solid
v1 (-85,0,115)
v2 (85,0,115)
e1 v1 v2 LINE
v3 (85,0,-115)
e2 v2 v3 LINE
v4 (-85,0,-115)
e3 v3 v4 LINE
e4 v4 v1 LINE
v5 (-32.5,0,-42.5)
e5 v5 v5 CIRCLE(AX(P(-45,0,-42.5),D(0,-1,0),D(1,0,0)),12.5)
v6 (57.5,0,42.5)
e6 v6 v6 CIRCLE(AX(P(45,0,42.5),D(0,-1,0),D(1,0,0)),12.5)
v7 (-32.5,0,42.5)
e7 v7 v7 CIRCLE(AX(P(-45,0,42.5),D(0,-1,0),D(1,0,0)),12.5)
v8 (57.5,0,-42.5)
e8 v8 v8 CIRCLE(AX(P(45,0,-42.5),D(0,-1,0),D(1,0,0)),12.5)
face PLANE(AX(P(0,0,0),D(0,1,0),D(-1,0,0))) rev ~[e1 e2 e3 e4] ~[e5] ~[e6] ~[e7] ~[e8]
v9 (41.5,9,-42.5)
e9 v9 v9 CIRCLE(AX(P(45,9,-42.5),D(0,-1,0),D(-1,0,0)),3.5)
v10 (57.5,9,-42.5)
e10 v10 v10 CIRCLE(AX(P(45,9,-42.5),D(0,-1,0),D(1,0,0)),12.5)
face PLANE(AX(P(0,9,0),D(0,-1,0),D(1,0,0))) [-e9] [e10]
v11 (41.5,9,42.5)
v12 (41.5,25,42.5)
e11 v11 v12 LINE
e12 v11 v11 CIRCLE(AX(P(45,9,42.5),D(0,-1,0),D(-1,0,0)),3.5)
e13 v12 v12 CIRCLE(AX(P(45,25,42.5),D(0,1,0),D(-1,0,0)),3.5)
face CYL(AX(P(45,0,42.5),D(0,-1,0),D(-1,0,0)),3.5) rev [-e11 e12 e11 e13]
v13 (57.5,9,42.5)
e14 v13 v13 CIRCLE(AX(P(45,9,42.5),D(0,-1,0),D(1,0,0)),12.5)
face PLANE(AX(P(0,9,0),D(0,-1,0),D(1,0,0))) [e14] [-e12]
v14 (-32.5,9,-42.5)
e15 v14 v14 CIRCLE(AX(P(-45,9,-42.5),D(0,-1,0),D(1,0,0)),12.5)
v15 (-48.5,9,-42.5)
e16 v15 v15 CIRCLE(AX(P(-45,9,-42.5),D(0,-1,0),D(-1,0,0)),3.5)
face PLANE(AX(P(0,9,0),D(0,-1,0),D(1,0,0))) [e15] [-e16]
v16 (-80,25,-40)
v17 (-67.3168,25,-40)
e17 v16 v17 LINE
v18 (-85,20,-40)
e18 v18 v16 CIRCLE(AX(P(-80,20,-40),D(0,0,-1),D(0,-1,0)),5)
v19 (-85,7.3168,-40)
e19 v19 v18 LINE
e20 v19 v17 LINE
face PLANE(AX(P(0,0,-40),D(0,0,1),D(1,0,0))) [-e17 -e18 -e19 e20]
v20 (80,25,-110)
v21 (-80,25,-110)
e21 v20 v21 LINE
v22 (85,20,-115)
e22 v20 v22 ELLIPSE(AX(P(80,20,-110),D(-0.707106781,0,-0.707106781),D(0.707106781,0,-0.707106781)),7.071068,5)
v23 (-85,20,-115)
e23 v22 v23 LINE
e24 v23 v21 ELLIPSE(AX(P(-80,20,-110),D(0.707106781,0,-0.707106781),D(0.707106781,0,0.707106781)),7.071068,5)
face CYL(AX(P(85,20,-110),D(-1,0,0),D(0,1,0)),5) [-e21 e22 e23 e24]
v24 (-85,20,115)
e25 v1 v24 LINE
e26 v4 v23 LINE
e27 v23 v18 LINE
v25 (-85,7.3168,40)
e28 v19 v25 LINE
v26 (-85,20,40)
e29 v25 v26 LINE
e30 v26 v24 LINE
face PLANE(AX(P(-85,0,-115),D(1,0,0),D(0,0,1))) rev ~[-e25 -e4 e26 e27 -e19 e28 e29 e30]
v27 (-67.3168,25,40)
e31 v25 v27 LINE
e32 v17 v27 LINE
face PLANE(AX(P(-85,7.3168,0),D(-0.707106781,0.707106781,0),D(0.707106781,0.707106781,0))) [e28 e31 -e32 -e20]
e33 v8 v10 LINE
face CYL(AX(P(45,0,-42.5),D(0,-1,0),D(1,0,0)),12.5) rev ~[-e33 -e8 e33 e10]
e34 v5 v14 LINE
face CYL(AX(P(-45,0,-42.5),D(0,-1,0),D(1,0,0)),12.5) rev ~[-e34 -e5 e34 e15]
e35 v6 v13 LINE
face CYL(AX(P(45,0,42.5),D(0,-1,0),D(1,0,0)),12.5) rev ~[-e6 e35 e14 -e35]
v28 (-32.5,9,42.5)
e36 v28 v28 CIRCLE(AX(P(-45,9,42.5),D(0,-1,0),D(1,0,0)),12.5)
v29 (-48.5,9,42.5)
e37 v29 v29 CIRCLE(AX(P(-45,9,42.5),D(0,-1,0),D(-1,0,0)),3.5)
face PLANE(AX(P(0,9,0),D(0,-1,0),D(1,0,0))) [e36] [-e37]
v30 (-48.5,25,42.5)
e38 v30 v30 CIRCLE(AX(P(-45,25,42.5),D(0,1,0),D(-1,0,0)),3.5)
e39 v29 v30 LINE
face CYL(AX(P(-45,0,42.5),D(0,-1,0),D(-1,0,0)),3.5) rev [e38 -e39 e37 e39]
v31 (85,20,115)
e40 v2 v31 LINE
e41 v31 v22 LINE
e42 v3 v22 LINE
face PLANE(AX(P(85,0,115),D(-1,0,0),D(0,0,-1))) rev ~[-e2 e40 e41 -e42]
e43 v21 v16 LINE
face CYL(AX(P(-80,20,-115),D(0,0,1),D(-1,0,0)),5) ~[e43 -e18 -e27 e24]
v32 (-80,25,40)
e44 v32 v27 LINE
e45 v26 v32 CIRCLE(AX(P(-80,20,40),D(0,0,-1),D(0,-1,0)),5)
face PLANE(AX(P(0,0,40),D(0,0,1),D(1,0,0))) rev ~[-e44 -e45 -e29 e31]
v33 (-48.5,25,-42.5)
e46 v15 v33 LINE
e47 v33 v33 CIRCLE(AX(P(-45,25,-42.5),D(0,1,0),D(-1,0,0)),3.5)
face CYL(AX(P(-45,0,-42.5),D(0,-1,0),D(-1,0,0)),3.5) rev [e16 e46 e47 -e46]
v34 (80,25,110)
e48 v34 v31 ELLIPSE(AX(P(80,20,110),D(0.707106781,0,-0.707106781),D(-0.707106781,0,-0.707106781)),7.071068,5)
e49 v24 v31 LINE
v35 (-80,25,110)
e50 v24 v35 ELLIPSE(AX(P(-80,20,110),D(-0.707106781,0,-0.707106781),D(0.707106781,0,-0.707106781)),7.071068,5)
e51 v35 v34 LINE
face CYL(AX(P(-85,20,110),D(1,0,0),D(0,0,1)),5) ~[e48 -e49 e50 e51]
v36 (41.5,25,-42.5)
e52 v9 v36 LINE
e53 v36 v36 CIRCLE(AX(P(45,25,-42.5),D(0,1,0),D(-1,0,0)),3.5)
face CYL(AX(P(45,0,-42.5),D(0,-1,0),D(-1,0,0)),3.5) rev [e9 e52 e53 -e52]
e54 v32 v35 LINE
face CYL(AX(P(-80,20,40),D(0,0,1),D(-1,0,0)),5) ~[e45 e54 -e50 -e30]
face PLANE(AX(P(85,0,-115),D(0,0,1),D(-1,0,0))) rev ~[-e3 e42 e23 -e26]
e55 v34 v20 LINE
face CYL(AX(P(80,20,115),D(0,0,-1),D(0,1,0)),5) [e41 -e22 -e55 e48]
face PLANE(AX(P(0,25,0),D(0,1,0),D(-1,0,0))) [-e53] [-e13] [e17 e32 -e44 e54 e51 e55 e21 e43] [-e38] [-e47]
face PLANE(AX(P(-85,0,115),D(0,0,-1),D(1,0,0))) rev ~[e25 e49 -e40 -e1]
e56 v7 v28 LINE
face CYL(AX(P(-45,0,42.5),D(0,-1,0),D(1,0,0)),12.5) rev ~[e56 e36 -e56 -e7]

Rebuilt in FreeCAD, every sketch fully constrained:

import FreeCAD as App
import Part
import Sketcher

V = App.Vector
Q = App.Units.Quantity


def edges_at(feature, points):
    """Names of the edges that pass closest to the given points."""
    edges = feature.Shape.Edges
    near = lambda p: min(range(len(edges)), key=lambda i: edges[i].distToShape(Part.Vertex(*p))[0])
    return sorted({f"Edge{near(p) + 1}" for p in points})

doc = App.newDocument("Part")
params = doc.addObject("Spreadsheet::Sheet", "Params")
for row, (alias, value) in enumerate([
    ("sketch1_diameter", "7 mm"),
    ("sketch1_height", "230 mm"),
    ("pad1_length", "25 mm"),
    ("sketch2_diameter", "25 mm"),
    ("sketch2_diameter2", "7 mm"),
    ("pocket1_length", "9 mm"),
    ("pocket2_length", "80 mm"),
    ("fillet_radius", "5 mm"),
], start=1):
    params.set(f"A{row}", alias)
    params.set(f"B{row}", "=" + value)
    params.setAlias(f"B{row}", alias)

body = doc.addObject("PartDesign::Body", "Body")

# Sketch on XZ plane
sketch1 = body.newObject("Sketcher::SketchObject", "Sketch")
sketch1.AttachmentSupport = (doc.getObject("XZ_Plane"), [""])
sketch1.MapMode = "FlatFace"
sketch1.addGeometry([
    Part.LineSegment(V(-85, -115, 0), V(-85, 115, 0)),  # 0
    Part.LineSegment(V(-85, 115, 0), V(85, 115, 0)),  # 1
    Part.LineSegment(V(85, 115, 0), V(85, -115, 0)),  # 2
    Part.LineSegment(V(85, -115, 0), V(-85, -115, 0)),  # 3
    Part.Circle(V(45, -42.5, 0), V(0, 0, 1), 3.5),  # 4
    Part.Circle(V(-45, -42.5, 0), V(0, 0, 1), 3.5),  # 5
    Part.Circle(V(45, 42.5, 0), V(0, 0, 1), 3.5),  # 6
    Part.Circle(V(-45, 42.5, 0), V(0, 0, 1), 3.5),  # 7
], False)
sketch1.addConstraint([
    Sketcher.Constraint("Coincident", 0, 2, 1, 1),
    Sketcher.Constraint("Coincident", 1, 2, 2, 1),
    Sketcher.Constraint("Coincident", 2, 2, 3, 1),
    Sketcher.Constraint("Coincident", 3, 2, 0, 1),
    Sketcher.Constraint("Vertical", 0),
    Sketcher.Constraint("Horizontal", 1),
    Sketcher.Constraint("Vertical", 2),
    Sketcher.Constraint("Horizontal", 3),
    Sketcher.Constraint("Equal", 4, 5),
    Sketcher.Constraint("Equal", 5, 6),
    Sketcher.Constraint("Equal", 6, 7),
    Sketcher.Constraint("Symmetric", 5, 3, 6, 3, -1, 1),
    Sketcher.Constraint("Symmetric", 4, 3, 7, 3, -1, 1),
    Sketcher.Constraint("Symmetric", 0, 2, 2, 2, -1, 1),
    Sketcher.Constraint("Symmetric", 4, 3, 5, 3, -2),
    Sketcher.Constraint("Diameter", 4, Q("7 mm")),
    Sketcher.Constraint("DistanceX", 0, 2, -1, 1, Q("85 mm")),
    Sketcher.Constraint("DistanceY", 4, 3, 6, 3, Q("85 mm")),
    Sketcher.Constraint("DistanceY", 0, 1, 0, 2, Q("230 mm")),
    Sketcher.Constraint("DistanceX", -1, 1, 4, 3, Q("45 mm")),
])
sketch1.setExpression("Constraints[15]", "Params.sketch1_diameter")
sketch1.setExpression("Constraints[18]", "Params.sketch1_height")
pad1 = body.newObject("PartDesign::Pad", "Pad")
pad1.Profile = sketch1
pad1.setExpression("Length", "Params.pad1_length")
pad1.Reversed = True

# Sketch on XZ plane
sketch2 = body.newObject("Sketcher::SketchObject", "Sketch001")
sketch2.AttachmentSupport = (doc.getObject("XZ_Plane"), [""])
sketch2.MapMode = "FlatFace"
sketch2.addGeometry([
    Part.Circle(V(-45, -42.5, 0), V(0, 0, 1), 12.5),  # 0
    Part.Circle(V(-45, -42.5, 0), V(0, 0, 1), 3.5),  # 1
    Part.Circle(V(-45, 42.5, 0), V(0, 0, 1), 12.5),  # 2
    Part.Circle(V(-45, 42.5, 0), V(0, 0, 1), 3.5),  # 3
    Part.Circle(V(45, 42.5, 0), V(0, 0, 1), 12.5),  # 4
    Part.Circle(V(45, 42.5, 0), V(0, 0, 1), 3.5),  # 5
    Part.Circle(V(45, -42.5, 0), V(0, 0, 1), 12.5),  # 6
    Part.Circle(V(45, -42.5, 0), V(0, 0, 1), 3.5),  # 7
], False)
sketch2.addConstraint([
    Sketcher.Constraint("Coincident", 1, 3, 0, 3),
    Sketcher.Constraint("Coincident", 3, 3, 2, 3),
    Sketcher.Constraint("Coincident", 5, 3, 4, 3),
    Sketcher.Constraint("Coincident", 7, 3, 6, 3),
    Sketcher.Constraint("Equal", 0, 2),
    Sketcher.Constraint("Equal", 1, 3),
    Sketcher.Constraint("Equal", 2, 4),
    Sketcher.Constraint("Equal", 3, 5),
    Sketcher.Constraint("Equal", 4, 6),
    Sketcher.Constraint("Equal", 5, 7),
    Sketcher.Constraint("Symmetric", 0, 3, 4, 3, -1, 1),
    Sketcher.Constraint("Symmetric", 2, 3, 6, 3, -1, 1),
    Sketcher.Constraint("Symmetric", 2, 3, 4, 3, -2),
    Sketcher.Constraint("Diameter", 0, Q("25 mm")),
    Sketcher.Constraint("Diameter", 1, Q("7 mm")),
    Sketcher.Constraint("DistanceX", 0, 3, -1, 1, Q("45 mm")),
    Sketcher.Constraint("DistanceY", 0, 3, 2, 3, Q("85 mm")),
])
sketch2.setExpression("Constraints[13]", "Params.sketch2_diameter")
sketch2.setExpression("Constraints[14]", "Params.sketch2_diameter2")
pocket1 = body.newObject("PartDesign::Pocket", "Pocket")
pocket1.Profile = sketch2
pocket1.setExpression("Length", "Params.pocket1_length")

# Sketch on XY plane
sketch3 = body.newObject("Sketcher::SketchObject", "Sketch002")
sketch3.AttachmentSupport = (doc.getObject("XY_Plane"), [""])
sketch3.MapMode = "FlatFace"
sketch3.addGeometry([
    Part.LineSegment(V(-85, 25, 0), V(-85, 7.3168, 0)),
    Part.LineSegment(V(-85, 7.3168, 0), V(-67.3168, 25, 0)),
    Part.LineSegment(V(-67.3168, 25, 0), V(-85, 25, 0)),
], False)
sketch3.addConstraint([
    Sketcher.Constraint("Coincident", 0, 2, 1, 1),
    Sketcher.Constraint("Coincident", 1, 2, 2, 1),
    Sketcher.Constraint("Coincident", 2, 2, 0, 1),
    Sketcher.Constraint("Vertical", 0),
    Sketcher.Constraint("Horizontal", 2),
    Sketcher.Constraint("Equal", 2, 0),
    Sketcher.Constraint("DistanceX", 0, 2, -1, 1, Q("85 mm")),
    Sketcher.Constraint("DistanceY", -1, 1, 1, 2, Q("25 mm")),
    Sketcher.Constraint("DistanceX", 2, 2, 2, 1, Q("17.6832 mm")),
])
pocket2 = body.newObject("PartDesign::Pocket", "Pocket001")
pocket2.Profile = sketch3
pocket2.setExpression("Length", "Params.pocket2_length")
pocket2.Midplane = True
doc.recompute()

fillet = body.newObject("PartDesign::Fillet", "Fillet")
fillet.Base = (pocket2, edges_at(pocket2, [
    (85, 25, 0),
    (0, 25, 115),
    (-85, 25, 77.5),
    (-85, 25, -77.5),
    (0, 25, -115),
]))
fillet.setExpression("Radius", "Params.fillet_radius")

doc.recompute()
